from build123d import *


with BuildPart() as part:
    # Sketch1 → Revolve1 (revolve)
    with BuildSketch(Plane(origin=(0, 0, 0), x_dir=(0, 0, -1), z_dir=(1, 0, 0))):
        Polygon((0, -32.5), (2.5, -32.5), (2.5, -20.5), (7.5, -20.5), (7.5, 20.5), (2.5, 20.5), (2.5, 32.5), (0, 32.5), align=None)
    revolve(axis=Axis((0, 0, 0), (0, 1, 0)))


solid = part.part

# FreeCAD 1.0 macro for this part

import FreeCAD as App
import Part
import Sketcher
from FreeCAD import Vector


def add_polygon(sketch, points):
    """Adds a closed chain of lines whose ends are joined by coincident constraints."""
    first, n = sketch.GeometryCount, len(points)
    for a, b in zip(points, points[1:] + points[:1]):
        sketch.addGeometry(Part.LineSegment(App.Vector(*a, 0), App.Vector(*b, 0)), False)
    for i in range(n):
        sketch.addConstraint(Sketcher.Constraint("Coincident", first + i, 2, first + (i + 1) % n, 1))

doc = App.newDocument("Part")
params = doc.addObject("Spreadsheet::Sheet", "Params")
for row, (alias, value) in enumerate([
    ("sketch1_width", "12 mm"),
    ("sketch1_width2", "41 mm"),
    ("sketch1_height", "5 mm"),
    ("sketch1_height2", "2.5 mm"),
    ("revolution_angle", "360 deg"),
], start=1):
    params.set(f"A{row}", alias)
    params.set(f"B{row}", "=" + value)
    params.setAlias(f"B{row}", alias)

body = doc.addObject("PartDesign::Body", "Body")

# Sketch on YZ plane
sketch1 = doc.addObject("Sketcher::SketchObject", "Sketch")
body.addObject(sketch1)
sketch1.AttachmentSupport = (doc.YZ_Plane, [""])
sketch1.MapMode = "FlatFace"
add_polygon(sketch1, [(-32.5, 0), (-32.5, -2.5), (-20.5, -2.5), (-20.5, -7.5), (20.5, -7.5), (20.5, -2.5), (32.5, -2.5), (32.5, 0)])  # lines 0-7
sketch1.addConstraint([
    Sketcher.Constraint("Vertical", 0),
    Sketcher.Constraint("Horizontal", 1),
    Sketcher.Constraint("Vertical", 2),
    Sketcher.Constraint("Horizontal", 3),
    Sketcher.Constraint("Vertical", 4),
    Sketcher.Constraint("Horizontal", 5),
    Sketcher.Constraint("Vertical", 6),
    Sketcher.Constraint("Horizontal", 7),
    Sketcher.Constraint("Symmetric", 6, 2, 7, 2, -1, 1),
    Sketcher.Constraint("Symmetric", 1, 2, 4, 2, -2),
    Sketcher.Constraint("DistanceX", 1, 1, 1, 2, 12.0),
    Sketcher.Constraint("DistanceX", 3, 1, 3, 2, 41.0),
    Sketcher.Constraint("DistanceY", 2, 2, 2, 1, 5.0),
    Sketcher.Constraint("DistanceY", 0, 2, 0, 1, 2.5),
])
sketch1.setExpression("Constraints[18]", "Params.sketch1_width")
sketch1.setExpression("Constraints[19]", "Params.sketch1_width2")
sketch1.setExpression("Constraints[20]", "Params.sketch1_height")
sketch1.setExpression("Constraints[21]", "Params.sketch1_height2")
revolution = doc.addObject("PartDesign::Revolution", "Revolution")
body.addObject(revolution)
revolution.Profile = sketch1
revolution.ReferenceAxis = (sketch1, ["H_Axis"])
revolution.setExpression("Angle", "Params.revolution_angle")

doc.recompute()
